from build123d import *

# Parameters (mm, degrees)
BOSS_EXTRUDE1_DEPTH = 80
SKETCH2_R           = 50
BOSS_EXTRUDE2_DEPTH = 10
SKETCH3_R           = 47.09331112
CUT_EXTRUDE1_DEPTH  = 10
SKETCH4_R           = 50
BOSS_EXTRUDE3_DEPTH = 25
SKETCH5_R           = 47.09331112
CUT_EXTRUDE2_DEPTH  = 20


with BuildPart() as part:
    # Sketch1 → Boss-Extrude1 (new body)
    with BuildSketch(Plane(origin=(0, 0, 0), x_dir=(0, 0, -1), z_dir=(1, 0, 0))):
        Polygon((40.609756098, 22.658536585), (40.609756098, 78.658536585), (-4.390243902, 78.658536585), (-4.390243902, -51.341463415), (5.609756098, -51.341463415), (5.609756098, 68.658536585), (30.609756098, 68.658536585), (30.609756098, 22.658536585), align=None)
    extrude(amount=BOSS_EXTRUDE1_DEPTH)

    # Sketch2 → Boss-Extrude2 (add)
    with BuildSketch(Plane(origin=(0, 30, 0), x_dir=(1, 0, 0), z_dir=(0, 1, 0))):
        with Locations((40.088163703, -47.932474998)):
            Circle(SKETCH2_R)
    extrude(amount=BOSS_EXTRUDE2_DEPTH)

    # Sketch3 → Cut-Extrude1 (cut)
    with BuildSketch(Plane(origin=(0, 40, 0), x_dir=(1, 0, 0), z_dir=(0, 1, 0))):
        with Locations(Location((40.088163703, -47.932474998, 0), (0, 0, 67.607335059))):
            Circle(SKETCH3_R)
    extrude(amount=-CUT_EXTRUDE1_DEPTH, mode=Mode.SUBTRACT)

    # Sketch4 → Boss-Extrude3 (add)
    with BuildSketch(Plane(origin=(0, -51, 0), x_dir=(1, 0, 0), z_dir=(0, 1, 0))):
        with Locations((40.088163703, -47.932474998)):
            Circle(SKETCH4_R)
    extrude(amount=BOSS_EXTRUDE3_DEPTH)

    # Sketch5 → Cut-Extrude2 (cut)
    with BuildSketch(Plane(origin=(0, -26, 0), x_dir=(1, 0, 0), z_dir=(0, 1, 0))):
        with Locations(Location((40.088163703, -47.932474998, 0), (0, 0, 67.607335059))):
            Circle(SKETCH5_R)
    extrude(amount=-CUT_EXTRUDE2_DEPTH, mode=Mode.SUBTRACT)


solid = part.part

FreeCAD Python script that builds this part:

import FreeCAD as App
import Part
import Sketcher

V = App.Vector
Q = App.Units.Quantity

doc = App.newDocument("Part")
body = doc.addObject("PartDesign::Body", "Body")

sketch1 = body.newObject("Sketcher::SketchObject", "Sketch")
sketch1.AttachmentSupport = (doc.getObject("YZ_Plane"), [""])
sketch1.MapMode = "FlatFace"
sketch1.addGeometry([
    Part.LineSegment(V(23, -41, 0), V(79, -41, 0)),
    Part.LineSegment(V(79, -41, 0), V(79, 4, 0)),
    Part.LineSegment(V(79, 4, 0), V(-51, 4, 0)),
    Part.LineSegment(V(-51, 4, 0), V(-51, -6, 0)),
    Part.LineSegment(V(-51, -6, 0), V(69, -6, 0)),
    Part.LineSegment(V(69, -6, 0), V(69, -31, 0)),
    Part.LineSegment(V(69, -31, 0), V(23, -31, 0)),
    Part.LineSegment(V(23, -31, 0), V(23, -41, 0)),
], False)
sketch1.addConstraint([
    Sketcher.Constraint("Coincident", 0, 2, 1, 1),
    Sketcher.Constraint("Coincident", 1, 2, 2, 1),
    Sketcher.Constraint("Coincident", 2, 2, 3, 1),
    Sketcher.Constraint("Coincident", 3, 2, 4, 1),
    Sketcher.Constraint("Coincident", 4, 2, 5, 1),
    Sketcher.Constraint("Coincident", 5, 2, 6, 1),
    Sketcher.Constraint("Coincident", 6, 2, 7, 1),
    Sketcher.Constraint("Coincident", 7, 2, 0, 1),
    Sketcher.Constraint("Horizontal", 0),
    Sketcher.Constraint("Vertical", 1),
    Sketcher.Constraint("Horizontal", 2),
    Sketcher.Constraint("Vertical", 3),
    Sketcher.Constraint("Horizontal", 4),
    Sketcher.Constraint("Vertical", 5),
    Sketcher.Constraint("Horizontal", 6),
    Sketcher.Constraint("Vertical", 7),
    Sketcher.Constraint("Equal", 3, 7),
    Sketcher.Constraint("DistanceX", 0, 1, 0, 2, Q("56 mm")),
    Sketcher.Constraint("DistanceX", 2, 2, 2, 1, Q("130 mm")),
    Sketcher.Constraint("DistanceX", 4, 1, 4, 2, Q("120 mm")),
    Sketcher.Constraint("DistanceY", 1, 1, 1, 2, Q("45 mm")),
    Sketcher.Constraint("DistanceY", 3, 2, 3, 1, Q("10 mm")),
    Sketcher.Constraint("DistanceX", -1, 1, 0, 2, Q("78.658537 mm")),
    Sketcher.Constraint("DistanceY", 0, 2, -1, 1, Q("40.609756 mm")),
])
pad1 = body.newObject("PartDesign::Pad", "Pad")
pad1.Profile = sketch1
pad1.Length = 80

sketch2 = body.newObject("Sketcher::SketchObject", "Sketch001")
sketch2.AttachmentSupport = (doc.getObject("XZ_Plane"), [""])
sketch2.MapMode = "FlatFace"
sketch2.AttachmentOffset = App.Placement(V(0, 0, -30), App.Rotation())
sketch2.addGeometry(Part.Circle(V(40, 48, 0), V(0, 0, 1), 50), False)
sketch2.addConstraint([
    Sketcher.Constraint("Diameter", 0, Q("100 mm")),
    Sketcher.Constraint("DistanceX", -1, 1, 0, 3, Q("40.088164 mm")),
    Sketcher.Constraint("DistanceY", -1, 1, 0, 3, Q("47.932475 mm")),
])
pad2 = body.newObject("PartDesign::Pad", "Pad001")
pad2.Profile = sketch2
pad2.Length = 10
pad2.Reversed = True

sketch3 = body.newObject("Sketcher::SketchObject", "Sketch002")
sketch3.AttachmentSupport = (doc.getObject("XZ_Plane"), [""])
sketch3.MapMode = "FlatFace"
sketch3.AttachmentOffset = App.Placement(V(0, 0, -40), App.Rotation())
sketch3.addGeometry(Part.Circle(V(40, 48, 0), V(0, 0, 1), 47), False)
sketch3.addConstraint([
    Sketcher.Constraint("Diameter", 0, Q("94.186622 mm")),
    Sketcher.Constraint("DistanceX", -1, 1, 0, 3, Q("40.088164 mm")),
    Sketcher.Constraint("DistanceY", -1, 1, 0, 3, Q("47.932475 mm")),
])
pocket1 = body.newObject("PartDesign::Pocket", "Pocket")
pocket1.Profile = sketch3
pocket1.Length = 10
pocket1.Reversed = True

sketch4 = body.newObject("Sketcher::SketchObject", "Sketch003")
sketch4.AttachmentSupport = (doc.getObject("XZ_Plane"), [""])
sketch4.MapMode = "FlatFace"
sketch4.AttachmentOffset = App.Placement(V(0, 0, 51), App.Rotation())
sketch4.addGeometry(Part.Circle(V(40, 48, 0), V(0, 0, 1), 50), False)
sketch4.addConstraint([
    Sketcher.Constraint("Diameter", 0, Q("100 mm")),
    Sketcher.Constraint("DistanceX", -1, 1, 0, 3, Q("40.088164 mm")),
    Sketcher.Constraint("DistanceY", -1, 1, 0, 3, Q("47.932475 mm")),
])
pad3 = body.newObject("PartDesign::Pad", "Pad002")
pad3.Profile = sketch4
pad3.Length = 25
pad3.Reversed = True

sketch5 = body.newObject("Sketcher::SketchObject", "Sketch004")
sketch5.AttachmentSupport = (doc.getObject("XZ_Plane"), [""])
sketch5.MapMode = "FlatFace"
sketch5.AttachmentOffset = App.Placement(V(0, 0, 26), App.Rotation())
sketch5.addGeometry(Part.Circle(V(40, 48, 0), V(0, 0, 1), 47), False)
sketch5.addConstraint([
    Sketcher.Constraint("Diameter", 0, Q("94.186622 mm")),
    Sketcher.Constraint("DistanceX", -1, 1, 0, 3, Q("40.088164 mm")),
    Sketcher.Constraint("DistanceY", -1, 1, 0, 3, Q("47.932475 mm")),
])
pocket2 = body.newObject("PartDesign::Pocket", "Pocket001")
pocket2.Profile = sketch5
pocket2.Length = 20
pocket2.Reversed = True

doc.recompute()
